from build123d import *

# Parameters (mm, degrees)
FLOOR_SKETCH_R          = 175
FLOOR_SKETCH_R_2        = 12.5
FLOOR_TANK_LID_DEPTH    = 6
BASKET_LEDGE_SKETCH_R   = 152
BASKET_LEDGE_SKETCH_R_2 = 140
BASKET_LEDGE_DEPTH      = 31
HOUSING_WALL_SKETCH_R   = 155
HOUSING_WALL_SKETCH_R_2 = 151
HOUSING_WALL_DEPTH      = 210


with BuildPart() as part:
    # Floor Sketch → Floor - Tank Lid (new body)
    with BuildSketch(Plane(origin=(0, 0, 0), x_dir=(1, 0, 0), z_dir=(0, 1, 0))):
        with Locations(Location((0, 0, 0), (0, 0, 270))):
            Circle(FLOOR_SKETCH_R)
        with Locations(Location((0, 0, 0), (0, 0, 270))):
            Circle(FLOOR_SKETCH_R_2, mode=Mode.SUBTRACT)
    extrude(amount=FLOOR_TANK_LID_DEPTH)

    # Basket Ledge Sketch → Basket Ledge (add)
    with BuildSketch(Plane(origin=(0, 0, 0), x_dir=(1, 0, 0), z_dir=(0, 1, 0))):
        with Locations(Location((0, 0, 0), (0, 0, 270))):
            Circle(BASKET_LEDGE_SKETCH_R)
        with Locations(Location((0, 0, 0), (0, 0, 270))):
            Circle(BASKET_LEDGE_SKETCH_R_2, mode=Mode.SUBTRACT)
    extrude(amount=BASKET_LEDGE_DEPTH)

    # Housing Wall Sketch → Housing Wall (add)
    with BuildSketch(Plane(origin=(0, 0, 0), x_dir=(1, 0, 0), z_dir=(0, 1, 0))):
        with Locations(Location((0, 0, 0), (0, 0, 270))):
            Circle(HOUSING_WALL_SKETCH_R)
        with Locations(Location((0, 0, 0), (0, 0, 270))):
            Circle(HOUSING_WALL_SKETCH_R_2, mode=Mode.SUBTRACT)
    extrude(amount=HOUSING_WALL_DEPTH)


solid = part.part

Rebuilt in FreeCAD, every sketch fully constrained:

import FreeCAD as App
import Part
import Sketcher
from FreeCAD import Vector

doc = App.newDocument("Part")
body = doc.addObject("PartDesign::Body", "Body")

sketch1 = doc.addObject("Sketcher::SketchObject", "Sketch")
body.addObject(sketch1)
sketch1.AttachmentSupport = (doc.XZ_Plane, [""])
sketch1.MapMode = "FlatFace"
sketch1.addGeometry(Part.Circle(Vector(0, 0, 0), Vector(0, 0, 1), 175), False)
sketch1.addGeometry(Part.Circle(Vector(0, 0, 0), Vector(0, 0, 1), 12), False)
sketch1.addConstraint(Sketcher.Constraint("Coincident", 0, 3, -1, 1))
sketch1.addConstraint(Sketcher.Constraint("Coincident", 1, 3, -1, 1))
sketch1.addConstraint(Sketcher.Constraint("Diameter", 0, 350.0))
sketch1.addConstraint(Sketcher.Constraint("Diameter", 1, 25.0))
pad1 = doc.addObject("PartDesign::Pad", "Pad")
body.addObject(pad1)
pad1.Profile = sketch1
pad1.Length = 6
pad1.Reversed = True

sketch2 = doc.addObject("Sketcher::SketchObject", "Sketch001")
body.addObject(sketch2)
sketch2.AttachmentSupport = (doc.XZ_Plane, [""])
sketch2.MapMode = "FlatFace"
sketch2.addGeometry(Part.Circle(Vector(0, 0, 0), Vector(0, 0, 1), 152), False)
sketch2.addGeometry(Part.Circle(Vector(0, 0, 0), Vector(0, 0, 1), 140), False)
sketch2.addConstraint(Sketcher.Constraint("Coincident", 0, 3, -1, 1))
sketch2.addConstraint(Sketcher.Constraint("Coincident", 1, 3, -1, 1))
sketch2.addConstraint(Sketcher.Constraint("Diameter", 0, 304.0))
sketch2.addConstraint(Sketcher.Constraint("Diameter", 1, 280.0))
pad2 = doc.addObject("PartDesign::Pad", "Pad001")
body.addObject(pad2)
pad2.Profile = sketch2
pad2.Length = 31
pad2.Reversed = True

sketch3 = doc.addObject("Sketcher::SketchObject", "Sketch002")
body.addObject(sketch3)
sketch3.AttachmentSupport = (doc.XZ_Plane, [""])
sketch3.MapMode = "FlatFace"
sketch3.addGeometry(Part.Circle(Vector(0, 0, 0), Vector(0, 0, 1), 155), False)
sketch3.addGeometry(Part.Circle(Vector(0, 0, 0), Vector(0, 0, 1), 151), False)
sketch3.addConstraint(Sketcher.Constraint("Coincident", 0, 3, -1, 1))
sketch3.addConstraint(Sketcher.Constraint("Coincident", 1, 3, -1, 1))
sketch3.addConstraint(Sketcher.Constraint("Diameter", 0, 310.0))
sketch3.addConstraint(Sketcher.Constraint("Diameter", 1, 302.0))
pad3 = doc.addObject("PartDesign::Pad", "Pad002")
body.addObject(pad3)
pad3.Profile = sketch3
pad3.Length = 210
pad3.Reversed = True

doc.recompute()
